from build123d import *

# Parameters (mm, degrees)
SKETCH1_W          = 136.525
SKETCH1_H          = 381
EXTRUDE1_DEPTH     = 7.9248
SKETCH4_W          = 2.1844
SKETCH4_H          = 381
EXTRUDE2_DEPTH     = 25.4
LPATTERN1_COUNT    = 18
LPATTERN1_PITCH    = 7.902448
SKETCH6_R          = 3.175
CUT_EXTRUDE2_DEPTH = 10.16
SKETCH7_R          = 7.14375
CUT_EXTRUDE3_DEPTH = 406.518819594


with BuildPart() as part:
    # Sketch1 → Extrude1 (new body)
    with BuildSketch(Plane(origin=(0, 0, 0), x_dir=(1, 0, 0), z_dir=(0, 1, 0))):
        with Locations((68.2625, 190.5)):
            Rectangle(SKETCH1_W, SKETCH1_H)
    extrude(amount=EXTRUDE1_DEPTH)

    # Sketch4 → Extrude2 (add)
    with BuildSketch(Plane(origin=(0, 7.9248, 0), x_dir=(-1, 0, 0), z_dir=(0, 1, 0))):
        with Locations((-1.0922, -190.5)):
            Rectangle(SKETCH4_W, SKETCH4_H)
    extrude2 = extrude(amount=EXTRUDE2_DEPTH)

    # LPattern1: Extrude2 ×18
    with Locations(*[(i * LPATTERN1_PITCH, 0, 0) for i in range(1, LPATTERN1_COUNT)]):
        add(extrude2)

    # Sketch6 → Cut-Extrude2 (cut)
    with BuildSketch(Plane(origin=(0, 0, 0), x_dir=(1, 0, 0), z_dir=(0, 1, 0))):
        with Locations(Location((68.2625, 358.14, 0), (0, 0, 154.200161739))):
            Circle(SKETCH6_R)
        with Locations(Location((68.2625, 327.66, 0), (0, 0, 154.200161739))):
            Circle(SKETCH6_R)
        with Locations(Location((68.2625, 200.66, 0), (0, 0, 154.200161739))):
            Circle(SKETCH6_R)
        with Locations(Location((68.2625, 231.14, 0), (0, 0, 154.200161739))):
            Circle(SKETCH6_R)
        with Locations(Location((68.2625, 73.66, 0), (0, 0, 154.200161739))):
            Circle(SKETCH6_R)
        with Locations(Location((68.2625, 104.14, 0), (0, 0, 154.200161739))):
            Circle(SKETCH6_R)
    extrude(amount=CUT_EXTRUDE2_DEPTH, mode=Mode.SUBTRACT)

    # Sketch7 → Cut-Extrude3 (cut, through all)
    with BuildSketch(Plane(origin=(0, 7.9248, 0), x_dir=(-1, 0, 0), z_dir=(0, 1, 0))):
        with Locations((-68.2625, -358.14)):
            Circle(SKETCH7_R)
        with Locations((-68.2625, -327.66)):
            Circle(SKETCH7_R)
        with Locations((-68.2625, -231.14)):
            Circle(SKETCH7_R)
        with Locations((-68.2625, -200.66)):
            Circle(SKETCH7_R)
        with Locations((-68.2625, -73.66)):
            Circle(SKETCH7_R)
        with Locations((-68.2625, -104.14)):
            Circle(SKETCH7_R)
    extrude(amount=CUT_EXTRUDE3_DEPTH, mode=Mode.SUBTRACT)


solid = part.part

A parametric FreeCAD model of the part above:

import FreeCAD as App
import Part
import Sketcher

V = App.Vector
Q = App.Units.Quantity

doc = App.newDocument("Part")
body = doc.addObject("PartDesign::Body", "Body")

# Sketch on XZ plane
sketch1 = body.newObject("Sketcher::SketchObject", "Sketch")
sketch1.AttachmentSupport = (doc.getObject("XZ_Plane"), [""])
sketch1.MapMode = "FlatFace"
sketch1.addGeometry(Part.LineSegment(V(0, -381, 0), V(0, 0, 0)), False)
sketch1.addGeometry(Part.LineSegment(V(0, 0, 0), V(137, 0, 0)), False)
sketch1.addGeometry(Part.LineSegment(V(137, 0, 0), V(137, -381, 0)), False)
sketch1.addGeometry(Part.LineSegment(V(137, -381, 0), V(0, -381, 0)), False)
sketch1.addConstraint(Sketcher.Constraint("Coincident", 0, 2, 1, 1))
sketch1.addConstraint(Sketcher.Constraint("Coincident", 1, 2, 2, 1))
sketch1.addConstraint(Sketcher.Constraint("Coincident", 2, 2, 3, 1))
sketch1.addConstraint(Sketcher.Constraint("Coincident", 3, 2, 0, 1))
sketch1.addConstraint(Sketcher.Constraint("Vertical", 0))
sketch1.addConstraint(Sketcher.Constraint("Horizontal", 1))
sketch1.addConstraint(Sketcher.Constraint("Vertical", 2))
sketch1.addConstraint(Sketcher.Constraint("Horizontal", 3))
sketch1.addConstraint(Sketcher.Constraint("Coincident", 0, 2, -1, 1))
sketch1.addConstraint(Sketcher.Constraint("DistanceY", 0, 1, 0, 2, Q("15 in")))
sketch1.addConstraint(Sketcher.Constraint("DistanceX", 1, 1, 1, 2, Q("5.375 in")))
pad1 = body.newObject("PartDesign::Pad", "Pad")
pad1.Profile = sketch1
pad1.Length = Q("0.312 in")
pad1.Reversed = True

# Sketch on XZ plane
sketch2 = body.newObject("Sketcher::SketchObject", "Sketch001")
sketch2.AttachmentSupport = (doc.getObject("XZ_Plane"), [""])
sketch2.MapMode = "FlatFace"
sketch2.AttachmentOffset = App.Placement(V(0, 0, -0.312 * 25.4), App.Rotation())
sketch2.addGeometry(Part.LineSegment(V(2.2, 0, 0), V(2.2, -381, 0)), False)
sketch2.addGeometry(Part.LineSegment(V(2.2, -381, 0), V(0, -381, 0)), False)
sketch2.addGeometry(Part.LineSegment(V(0, -381, 0), V(0, 0, 0)), False)
sketch2.addGeometry(Part.LineSegment(V(0, 0, 0), V(2.2, 0, 0)), False)
sketch2.addConstraint(Sketcher.Constraint("Coincident", 0, 2, 1, 1))
sketch2.addConstraint(Sketcher.Constraint("Coincident", 1, 2, 2, 1))
sketch2.addConstraint(Sketcher.Constraint("Coincident", 2, 2, 3, 1))
sketch2.addConstraint(Sketcher.Constraint("Coincident", 3, 2, 0, 1))
sketch2.addConstraint(Sketcher.Constraint("Vertical", 0))
sketch2.addConstraint(Sketcher.Constraint("Horizontal", 1))
sketch2.addConstraint(Sketcher.Constraint("Vertical", 2))
sketch2.addConstraint(Sketcher.Constraint("Horizontal", 3))
sketch2.addConstraint(Sketcher.Constraint("Coincident", 2, 2, -1, 1))
sketch2.addConstraint(Sketcher.Constraint("DistanceY", 0, 2, 0, 1, Q("15 in")))
sketch2.addConstraint(Sketcher.Constraint("DistanceX", 1, 2, 1, 1, Q("0.086 in")))
pad2 = body.newObject("PartDesign::Pad", "Pad001")
pad2.Profile = sketch2
pad2.Length = Q("1 in")
pad2.Reversed = True
doc.recompute()

linearpattern = body.newObject("PartDesign::LinearPattern", "LinearPattern")
linearpattern.Originals = [pad2]
linearpattern.Direction = (doc.getObject("X_Axis"), [""])
linearpattern.Mode = "offset"
linearpattern.Offset = 7.902448
linearpattern.Occurrences = 18
body.Tip = linearpattern

# Sketch on XZ plane
sketch3 = body.newObject("Sketcher::SketchObject", "Sketch002")
sketch3.AttachmentSupport = (doc.getObject("XZ_Plane"), [""])
sketch3.MapMode = "FlatFace"
sketch3.addGeometry(Part.Circle(V(68.3, -358.1, 0), V(0, 0, 1), 3.2), False)
sketch3.addGeometry(Part.Circle(V(68.3, -327.7, 0), V(0, 0, 1), 3.2), False)
sketch3.addGeometry(Part.Circle(V(68.3, -200.7, 0), V(0, 0, 1), 3.2), False)
sketch3.addGeometry(Part.Circle(V(68.3, -231.1, 0), V(0, 0, 1), 3.2), False)
sketch3.addGeometry(Part.Circle(V(68.3, -73.7, 0), V(0, 0, 1), 3.2), False)
sketch3.addGeometry(Part.Circle(V(68.3, -104.1, 0), V(0, 0, 1), 3.2), False)
sketch3.addConstraint(Sketcher.Constraint("Equal", 0, 1))
sketch3.addConstraint(Sketcher.Constraint("Equal", 1, 2))
sketch3.addConstraint(Sketcher.Constraint("Equal", 2, 3))
sketch3.addConstraint(Sketcher.Constraint("Equal", 3, 4))
sketch3.addConstraint(Sketcher.Constraint("Equal", 4, 5))
sketch3.addConstraint(Sketcher.Constraint("Vertical", 0, 3, 1, 3))
sketch3.addConstraint(Sketcher.Constraint("Vertical", 1, 3, 2, 3))
sketch3.addConstraint(Sketcher.Constraint("Vertical", 2, 3, 3, 3))
sketch3.addConstraint(Sketcher.Constraint("Vertical", 3, 3, 4, 3))
sketch3.addConstraint(Sketcher.Constraint("Vertical", 4, 3, 5, 3))
sketch3.addConstraint(Sketcher.Constraint("Diameter", 0, Q("0.25 in")))
sketch3.addConstraint(Sketcher.Constraint("DistanceY", 1, 3, 2, 3, Q("5 in")))
sketch3.addConstraint(Sketcher.Constraint("DistanceY", 0, 3, 3, 3, Q("5 in")))
sketch3.addConstraint(Sketcher.Constraint("DistanceY", 2, 3, 4, 3, Q("5 in")))
sketch3.addConstraint(Sketcher.Constraint("DistanceY", 3, 3, 5, 3, Q("5 in")))
sketch3.addConstraint(Sketcher.Constraint("DistanceY", 0, 3, -1, 1, Q("14.1 in")))
sketch3.addConstraint(Sketcher.Constraint("DistanceY", 1, 3, -1, 1, Q("12.9 in")))
sketch3.addConstraint(Sketcher.Constraint("DistanceX", -1, 1, 0, 3, Q("2.6875 in")))
pocket1 = body.newObject("PartDesign::Pocket", "Pocket")
pocket1.Profile = sketch3
pocket1.Length = Q("0.4 in")

# Sketch on XZ plane
sketch4 = body.newObject("Sketcher::SketchObject", "Sketch003")
sketch4.AttachmentSupport = (doc.getObject("XZ_Plane"), [""])
sketch4.MapMode = "FlatFace"
sketch4.AttachmentOffset = App.Placement(V(0, 0, -0.312 * 25.4), App.Rotation())
sketch4.addGeometry(Part.Circle(V(68, -358, 0), V(0, 0, 1), 7), False)
sketch4.addGeometry(Part.Circle(V(68, -328, 0), V(0, 0, 1), 7), False)
sketch4.addGeometry(Part.Circle(V(68, -231, 0), V(0, 0, 1), 7), False)
sketch4.addGeometry(Part.Circle(V(68, -201, 0), V(0, 0, 1), 7), False)
sketch4.addGeometry(Part.Circle(V(68, -74, 0), V(0, 0, 1), 7), False)
sketch4.addGeometry(Part.Circle(V(68, -104, 0), V(0, 0, 1), 7), False)
sketch4.addConstraint(Sketcher.Constraint("Equal", 0, 1))
sketch4.addConstraint(Sketcher.Constraint("Equal", 1, 2))
sketch4.addConstraint(Sketcher.Constraint("Equal", 2, 3))
sketch4.addConstraint(Sketcher.Constraint("Equal", 3, 4))
sketch4.addConstraint(Sketcher.Constraint("Equal", 4, 5))
sketch4.addConstraint(Sketcher.Constraint("Vertical", 0, 3, 1, 3))
sketch4.addConstraint(Sketcher.Constraint("Vertical", 1, 3, 2, 3))
sketch4.addConstraint(Sketcher.Constraint("Vertical", 2, 3, 3, 3))
sketch4.addConstraint(Sketcher.Constraint("Vertical", 3, 3, 4, 3))
sketch4.addConstraint(Sketcher.Constraint("Vertical", 4, 3, 5, 3))
sketch4.addConstraint(Sketcher.Constraint("Diameter", 0, Q("0.5625 in")))
sketch4.addConstraint(Sketcher.Constraint("DistanceY", 0, 3, 2, 3, Q("5 in")))
sketch4.addConstraint(Sketcher.Constraint("DistanceY", 1, 3, 3, 3, Q("5 in")))
sketch4.addConstraint(Sketcher.Constraint("DistanceY", 3, 3, 4, 3, Q("5 in")))
sketch4.addConstraint(Sketcher.Constraint("DistanceY", 2, 3, 5, 3, Q("5 in")))
sketch4.addConstraint(Sketcher.Constraint("DistanceY", 0, 3, -1, 1, Q("14.1 in")))
sketch4.addConstraint(Sketcher.Constraint("DistanceY", 1, 3, -1, 1, Q("12.9 in")))
sketch4.addConstraint(Sketcher.Constraint("DistanceX", -1, 1, 0, 3, Q("2.6875 in")))
pocket2 = body.newObject("PartDesign::Pocket", "Pocket001")
pocket2.Profile = sketch4
pocket2.Type = "ThroughAll"

doc.recompute()
